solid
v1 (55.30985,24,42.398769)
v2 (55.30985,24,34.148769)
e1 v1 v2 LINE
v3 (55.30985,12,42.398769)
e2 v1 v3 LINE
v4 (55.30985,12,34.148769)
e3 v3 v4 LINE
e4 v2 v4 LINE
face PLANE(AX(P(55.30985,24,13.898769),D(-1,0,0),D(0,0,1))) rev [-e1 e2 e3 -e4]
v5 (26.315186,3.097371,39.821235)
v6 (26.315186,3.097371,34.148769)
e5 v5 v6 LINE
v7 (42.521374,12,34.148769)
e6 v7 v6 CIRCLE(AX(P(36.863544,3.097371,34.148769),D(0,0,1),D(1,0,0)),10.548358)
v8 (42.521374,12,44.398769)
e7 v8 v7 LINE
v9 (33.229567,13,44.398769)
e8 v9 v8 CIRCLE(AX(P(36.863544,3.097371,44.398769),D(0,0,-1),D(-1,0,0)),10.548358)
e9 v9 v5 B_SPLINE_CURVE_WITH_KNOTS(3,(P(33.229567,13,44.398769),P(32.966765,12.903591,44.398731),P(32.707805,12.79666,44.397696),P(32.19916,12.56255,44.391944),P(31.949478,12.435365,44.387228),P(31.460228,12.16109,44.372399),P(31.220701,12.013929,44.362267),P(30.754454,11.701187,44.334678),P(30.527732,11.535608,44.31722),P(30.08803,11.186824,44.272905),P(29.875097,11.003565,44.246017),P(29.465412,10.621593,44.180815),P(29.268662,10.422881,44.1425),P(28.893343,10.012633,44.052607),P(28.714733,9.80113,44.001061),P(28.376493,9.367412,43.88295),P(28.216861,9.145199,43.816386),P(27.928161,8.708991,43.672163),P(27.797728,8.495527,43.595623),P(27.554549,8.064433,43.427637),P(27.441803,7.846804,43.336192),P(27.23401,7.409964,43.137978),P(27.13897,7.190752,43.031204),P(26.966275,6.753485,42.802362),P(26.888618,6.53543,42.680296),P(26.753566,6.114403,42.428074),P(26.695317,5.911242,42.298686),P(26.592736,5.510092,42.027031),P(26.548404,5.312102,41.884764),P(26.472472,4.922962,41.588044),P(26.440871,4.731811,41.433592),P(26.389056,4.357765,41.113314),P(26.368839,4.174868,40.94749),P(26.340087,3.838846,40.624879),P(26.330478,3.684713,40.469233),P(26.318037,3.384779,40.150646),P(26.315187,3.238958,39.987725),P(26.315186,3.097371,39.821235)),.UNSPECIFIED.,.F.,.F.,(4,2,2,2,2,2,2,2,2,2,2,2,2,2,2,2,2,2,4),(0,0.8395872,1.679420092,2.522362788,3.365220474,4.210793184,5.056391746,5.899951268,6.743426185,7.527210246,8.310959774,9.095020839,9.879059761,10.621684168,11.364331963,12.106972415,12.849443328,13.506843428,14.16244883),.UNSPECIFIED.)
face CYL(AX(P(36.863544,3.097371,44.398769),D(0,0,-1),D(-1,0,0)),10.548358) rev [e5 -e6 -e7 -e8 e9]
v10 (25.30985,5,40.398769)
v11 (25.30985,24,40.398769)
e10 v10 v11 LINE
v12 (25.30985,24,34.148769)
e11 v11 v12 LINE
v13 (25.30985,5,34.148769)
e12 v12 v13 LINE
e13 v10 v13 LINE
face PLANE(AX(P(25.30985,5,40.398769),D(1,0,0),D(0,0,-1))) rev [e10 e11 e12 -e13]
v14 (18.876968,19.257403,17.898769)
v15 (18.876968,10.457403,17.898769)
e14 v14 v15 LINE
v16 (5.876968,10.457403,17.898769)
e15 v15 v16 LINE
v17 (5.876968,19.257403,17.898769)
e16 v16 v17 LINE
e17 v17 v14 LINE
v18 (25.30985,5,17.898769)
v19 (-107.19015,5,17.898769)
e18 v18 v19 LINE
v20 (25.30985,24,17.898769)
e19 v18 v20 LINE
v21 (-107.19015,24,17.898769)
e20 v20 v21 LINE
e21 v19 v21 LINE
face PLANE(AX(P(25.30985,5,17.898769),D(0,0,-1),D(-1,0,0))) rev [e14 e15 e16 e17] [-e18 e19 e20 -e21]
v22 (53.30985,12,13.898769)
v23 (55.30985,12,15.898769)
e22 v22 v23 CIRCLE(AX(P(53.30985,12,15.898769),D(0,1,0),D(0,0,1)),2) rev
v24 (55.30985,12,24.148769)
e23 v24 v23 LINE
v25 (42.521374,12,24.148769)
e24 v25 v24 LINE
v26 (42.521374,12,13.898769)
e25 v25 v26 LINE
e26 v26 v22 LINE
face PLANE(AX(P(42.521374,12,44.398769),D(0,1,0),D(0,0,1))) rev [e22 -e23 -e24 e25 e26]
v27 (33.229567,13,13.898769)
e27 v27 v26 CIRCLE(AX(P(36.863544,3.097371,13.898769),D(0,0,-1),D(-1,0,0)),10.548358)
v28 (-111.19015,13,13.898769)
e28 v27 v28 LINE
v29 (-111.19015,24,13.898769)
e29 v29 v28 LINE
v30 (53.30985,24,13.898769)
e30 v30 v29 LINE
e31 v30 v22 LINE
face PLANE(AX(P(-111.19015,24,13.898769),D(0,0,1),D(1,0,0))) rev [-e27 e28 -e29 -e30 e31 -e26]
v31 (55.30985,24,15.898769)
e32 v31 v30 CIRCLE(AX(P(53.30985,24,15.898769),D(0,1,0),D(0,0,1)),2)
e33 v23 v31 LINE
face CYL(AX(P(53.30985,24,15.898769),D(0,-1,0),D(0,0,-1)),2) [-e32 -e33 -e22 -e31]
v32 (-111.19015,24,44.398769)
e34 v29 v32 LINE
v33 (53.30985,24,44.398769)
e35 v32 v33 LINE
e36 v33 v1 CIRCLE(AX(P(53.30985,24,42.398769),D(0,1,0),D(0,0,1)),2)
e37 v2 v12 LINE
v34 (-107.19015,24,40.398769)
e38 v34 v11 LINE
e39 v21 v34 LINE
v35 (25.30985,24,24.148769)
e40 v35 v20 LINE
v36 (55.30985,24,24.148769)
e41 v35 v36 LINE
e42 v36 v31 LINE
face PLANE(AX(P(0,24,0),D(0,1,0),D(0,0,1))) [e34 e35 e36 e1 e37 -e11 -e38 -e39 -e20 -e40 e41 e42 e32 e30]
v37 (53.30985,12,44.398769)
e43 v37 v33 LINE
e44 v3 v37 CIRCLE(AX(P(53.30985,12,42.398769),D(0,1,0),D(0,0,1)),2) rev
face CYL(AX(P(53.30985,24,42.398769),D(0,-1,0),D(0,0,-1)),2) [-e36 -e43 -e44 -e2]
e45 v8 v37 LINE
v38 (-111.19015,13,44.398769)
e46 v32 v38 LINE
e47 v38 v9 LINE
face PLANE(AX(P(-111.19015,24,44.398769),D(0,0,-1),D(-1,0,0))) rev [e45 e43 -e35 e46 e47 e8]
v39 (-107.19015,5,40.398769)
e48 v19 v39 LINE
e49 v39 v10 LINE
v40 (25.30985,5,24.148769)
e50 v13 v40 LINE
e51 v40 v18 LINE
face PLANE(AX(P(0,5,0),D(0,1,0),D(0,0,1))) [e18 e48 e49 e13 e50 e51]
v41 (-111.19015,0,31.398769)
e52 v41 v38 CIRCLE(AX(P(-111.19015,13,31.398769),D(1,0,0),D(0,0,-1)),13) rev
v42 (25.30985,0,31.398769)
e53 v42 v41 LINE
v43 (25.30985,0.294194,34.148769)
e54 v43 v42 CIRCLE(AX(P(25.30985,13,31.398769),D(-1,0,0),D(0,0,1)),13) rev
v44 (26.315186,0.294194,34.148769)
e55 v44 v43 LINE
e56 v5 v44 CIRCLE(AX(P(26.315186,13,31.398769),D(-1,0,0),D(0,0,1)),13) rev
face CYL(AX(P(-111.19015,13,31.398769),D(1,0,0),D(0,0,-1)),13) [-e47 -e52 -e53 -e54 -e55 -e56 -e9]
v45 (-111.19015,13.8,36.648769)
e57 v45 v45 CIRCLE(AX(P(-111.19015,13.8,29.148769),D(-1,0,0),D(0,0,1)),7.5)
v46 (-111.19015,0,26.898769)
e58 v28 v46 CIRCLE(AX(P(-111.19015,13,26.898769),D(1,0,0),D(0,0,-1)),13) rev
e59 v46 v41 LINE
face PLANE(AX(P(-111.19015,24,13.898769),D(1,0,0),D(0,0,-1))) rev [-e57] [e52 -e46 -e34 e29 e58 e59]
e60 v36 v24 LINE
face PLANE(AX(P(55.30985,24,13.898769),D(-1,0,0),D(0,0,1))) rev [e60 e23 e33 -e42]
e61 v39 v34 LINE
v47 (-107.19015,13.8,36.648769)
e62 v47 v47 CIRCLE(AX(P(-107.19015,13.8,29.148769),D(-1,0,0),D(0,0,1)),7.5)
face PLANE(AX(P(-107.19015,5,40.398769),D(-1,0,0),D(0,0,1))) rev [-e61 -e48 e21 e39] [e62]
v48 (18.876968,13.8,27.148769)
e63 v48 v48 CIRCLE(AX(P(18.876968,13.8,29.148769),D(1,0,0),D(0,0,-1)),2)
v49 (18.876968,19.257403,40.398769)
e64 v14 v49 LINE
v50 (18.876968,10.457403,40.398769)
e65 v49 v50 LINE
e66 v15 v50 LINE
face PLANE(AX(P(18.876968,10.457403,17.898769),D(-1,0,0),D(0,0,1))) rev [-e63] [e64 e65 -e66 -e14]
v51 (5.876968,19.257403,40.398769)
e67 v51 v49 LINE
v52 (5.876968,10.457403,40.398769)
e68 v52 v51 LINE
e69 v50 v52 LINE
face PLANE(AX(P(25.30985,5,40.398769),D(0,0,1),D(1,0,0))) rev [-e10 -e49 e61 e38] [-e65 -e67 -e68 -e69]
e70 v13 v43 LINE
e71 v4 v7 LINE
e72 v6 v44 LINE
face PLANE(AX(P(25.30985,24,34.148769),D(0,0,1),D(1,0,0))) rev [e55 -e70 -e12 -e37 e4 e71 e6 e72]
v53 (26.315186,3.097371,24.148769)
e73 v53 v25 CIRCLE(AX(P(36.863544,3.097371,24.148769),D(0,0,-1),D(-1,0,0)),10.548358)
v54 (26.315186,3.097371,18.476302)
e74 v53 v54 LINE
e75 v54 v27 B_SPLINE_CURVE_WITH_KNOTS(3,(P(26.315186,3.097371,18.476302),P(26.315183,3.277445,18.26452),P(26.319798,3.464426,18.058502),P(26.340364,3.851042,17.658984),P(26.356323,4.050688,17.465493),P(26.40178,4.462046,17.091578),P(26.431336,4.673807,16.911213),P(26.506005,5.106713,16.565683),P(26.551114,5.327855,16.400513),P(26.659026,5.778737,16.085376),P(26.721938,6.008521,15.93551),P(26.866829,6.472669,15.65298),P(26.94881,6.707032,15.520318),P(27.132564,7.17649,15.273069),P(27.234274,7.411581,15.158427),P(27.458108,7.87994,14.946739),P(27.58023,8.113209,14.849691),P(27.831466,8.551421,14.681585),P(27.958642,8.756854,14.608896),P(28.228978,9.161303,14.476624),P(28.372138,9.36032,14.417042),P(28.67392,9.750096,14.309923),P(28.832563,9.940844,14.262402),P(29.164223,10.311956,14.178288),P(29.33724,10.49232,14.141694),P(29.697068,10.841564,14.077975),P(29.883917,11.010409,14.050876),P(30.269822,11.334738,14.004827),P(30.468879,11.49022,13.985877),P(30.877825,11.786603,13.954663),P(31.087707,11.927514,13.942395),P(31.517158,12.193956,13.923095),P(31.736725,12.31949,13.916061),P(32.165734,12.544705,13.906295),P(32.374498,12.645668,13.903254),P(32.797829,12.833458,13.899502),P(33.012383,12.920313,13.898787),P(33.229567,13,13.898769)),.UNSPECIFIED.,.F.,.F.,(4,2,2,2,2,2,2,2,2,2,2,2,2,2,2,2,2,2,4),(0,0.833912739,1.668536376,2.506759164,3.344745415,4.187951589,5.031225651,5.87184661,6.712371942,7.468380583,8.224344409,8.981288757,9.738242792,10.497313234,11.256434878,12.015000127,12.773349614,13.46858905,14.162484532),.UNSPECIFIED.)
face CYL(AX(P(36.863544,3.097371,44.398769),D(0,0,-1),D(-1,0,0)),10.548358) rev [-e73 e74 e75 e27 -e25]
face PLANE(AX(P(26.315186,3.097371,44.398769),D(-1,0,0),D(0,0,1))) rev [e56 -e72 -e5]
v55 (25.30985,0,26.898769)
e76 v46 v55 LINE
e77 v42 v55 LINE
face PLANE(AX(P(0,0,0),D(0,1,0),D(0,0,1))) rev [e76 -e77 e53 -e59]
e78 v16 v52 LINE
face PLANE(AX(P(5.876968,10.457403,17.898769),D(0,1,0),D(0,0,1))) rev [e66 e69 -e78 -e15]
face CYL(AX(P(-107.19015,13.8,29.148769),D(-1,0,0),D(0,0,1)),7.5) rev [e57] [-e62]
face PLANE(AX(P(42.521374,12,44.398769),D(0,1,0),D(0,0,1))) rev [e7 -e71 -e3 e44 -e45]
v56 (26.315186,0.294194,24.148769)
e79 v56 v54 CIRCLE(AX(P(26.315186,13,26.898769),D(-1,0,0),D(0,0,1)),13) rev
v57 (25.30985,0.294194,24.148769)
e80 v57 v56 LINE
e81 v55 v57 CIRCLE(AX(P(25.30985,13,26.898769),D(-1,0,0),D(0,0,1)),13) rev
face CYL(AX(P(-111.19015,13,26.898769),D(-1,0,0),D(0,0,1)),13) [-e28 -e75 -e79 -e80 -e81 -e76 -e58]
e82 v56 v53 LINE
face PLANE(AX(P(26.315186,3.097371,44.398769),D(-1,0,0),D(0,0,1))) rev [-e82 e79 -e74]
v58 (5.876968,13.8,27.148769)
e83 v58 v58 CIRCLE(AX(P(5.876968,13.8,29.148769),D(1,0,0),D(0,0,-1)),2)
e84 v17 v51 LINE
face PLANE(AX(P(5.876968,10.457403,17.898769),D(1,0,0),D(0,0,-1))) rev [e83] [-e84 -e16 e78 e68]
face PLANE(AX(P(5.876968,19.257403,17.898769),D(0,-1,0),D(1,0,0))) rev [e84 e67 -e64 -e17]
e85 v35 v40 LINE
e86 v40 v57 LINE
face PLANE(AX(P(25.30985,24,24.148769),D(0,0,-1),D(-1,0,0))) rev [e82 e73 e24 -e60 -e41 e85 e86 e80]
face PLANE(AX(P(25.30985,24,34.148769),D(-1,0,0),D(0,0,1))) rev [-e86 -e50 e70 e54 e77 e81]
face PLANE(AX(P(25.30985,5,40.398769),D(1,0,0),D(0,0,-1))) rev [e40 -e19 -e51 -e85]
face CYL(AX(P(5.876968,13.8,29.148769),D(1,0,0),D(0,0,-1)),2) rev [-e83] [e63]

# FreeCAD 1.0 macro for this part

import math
import FreeCAD as App
import Part
import Sketcher
Q = App.Units.Quantity


def edges_at(feature, points):
    """Names of the edges that pass closest to the given points."""
    edges = feature.Shape.Edges
    near = lambda p: min(range(len(edges)), key=lambda i: edges[i].distToShape(Part.Vertex(*p))[0])
    return sorted({f"Edge{near(p) + 1}" for p in points})


def add_polygon(sketch, points):
    """Adds a closed chain of lines whose ends are joined by coincident constraints."""
    first, n = sketch.GeometryCount, len(points)
    for a, b in zip(points, points[1:] + points[:1]):
        sketch.addGeometry(Part.LineSegment(App.Vector(*a, 0), App.Vector(*b, 0)), False)
    for i in range(n):
        sketch.addConstraint(Sketcher.Constraint("Coincident", first + i, 2, first + (i + 1) % n, 1))

doc = App.newDocument("Part")
body = doc.addObject("PartDesign::Body", "Body")

# Sketch on XZ plane
sketch1 = body.newObject("Sketcher::SketchObject", "Sketch")
sketch1.AttachmentSupport = (doc.getObject("XZ_Plane"), [""])
sketch1.MapMode = "FlatFace"
add_polygon(sketch1, [(-111, 14), (-111, 44), (55, 44), (55, 14)])  # lines 0-3
sketch1.addConstraint([
    Sketcher.Constraint("Vertical", 0),
    Sketcher.Constraint("Horizontal", 1),
    Sketcher.Constraint("Vertical", 2),
    Sketcher.Constraint("Horizontal", 3),
    Sketcher.Constraint("DistanceX", 1, 1, 1, 2, Q("166.5 mm")),
    Sketcher.Constraint("DistanceY", 0, 1, 0, 2, Q("30.5 mm")),
    Sketcher.Constraint("DistanceX", 0, 2, -1, 1, Q("111.19015 mm")),
    Sketcher.Constraint("DistanceY", -1, 1, 0, 2, Q("44.398769 mm")),
])
pad1 = body.newObject("PartDesign::Pad", "Pad")
pad1.Profile = sketch1
pad1.Length = 24
pad1.Reversed = True

# Sketch on XZ plane
sketch2 = body.newObject("Sketcher::SketchObject", "Sketch001")
sketch2.AttachmentSupport = (doc.getObject("XZ_Plane"), [""])
sketch2.MapMode = "FlatFace"
add_polygon(sketch2, [(25, 34), (25, 24), (55, 24), (55, 34)])  # lines 0-3
sketch2.addConstraint([
    Sketcher.Constraint("Vertical", 0),
    Sketcher.Constraint("Horizontal", 1),
    Sketcher.Constraint("Vertical", 2),
    Sketcher.Constraint("Horizontal", 3),
    Sketcher.Constraint("DistanceX", 1, 1, 1, 2, Q("30 mm")),
    Sketcher.Constraint("DistanceY", 0, 2, 0, 1, Q("10 mm")),
    Sketcher.Constraint("DistanceX", -1, 1, 0, 2, Q("25.30985 mm")),
    Sketcher.Constraint("DistanceY", -1, 1, 0, 2, Q("24.148769 mm")),
])
pocket1 = body.newObject("PartDesign::Pocket", "Pocket")
pocket1.Profile = sketch2
pocket1.Type = "ThroughAll"

# Sketch on XY plane
sketch3 = body.newObject("Sketcher::SketchObject", "Sketch002")
sketch3.AttachmentSupport = (doc.getObject("XY_Plane"), [""])
sketch3.MapMode = "FlatFace"
sketch3.AttachmentOffset = App.Placement(App.Vector(0, 0, 13.898769), App.Rotation())
sketch3.addGeometry([
    Part.LineSegment(App.Vector(26.3, 0, 0), App.Vector(26.3, 3.1, 0)),  # 0
    Part.ArcOfCircle(Part.Circle(App.Vector(36.9, 3.1, 0), App.Vector(0, 0, 1), 10.5), math.radians(58), math.radians(180)),  # 1
    Part.LineSegment(App.Vector(42.5, 12, 0), App.Vector(55.3, 12, 0)),  # 2
    Part.LineSegment(App.Vector(55.3, 12, 0), App.Vector(55.3, 0, 0)),  # 3
    Part.LineSegment(App.Vector(55.3, 0, 0), App.Vector(26.3, 0, 0)),  # 4
], False)
sketch3.addConstraint([
    Sketcher.Constraint("Tangent", 0, 2, 1, 2),
    Sketcher.Constraint("Coincident", 1, 1, 2, 1),
    Sketcher.Constraint("Coincident", 2, 2, 3, 1),
    Sketcher.Constraint("Coincident", 3, 2, 4, 1),
    Sketcher.Constraint("Coincident", 4, 2, 0, 1),
    Sketcher.Constraint("Vertical", 0),
    Sketcher.Constraint("Horizontal", 2),
    Sketcher.Constraint("Vertical", 3),
    Sketcher.Constraint("Horizontal", 4),
    Sketcher.Constraint("PointOnObject", 3, 2, -1),
    Sketcher.Constraint("DistanceY", 3, 2, 3, 1, Q("12 mm")),
    Sketcher.Constraint("Radius", 1, Q("10.548358 mm")),
    Sketcher.Constraint("DistanceY", 0, 1, 0, 2, Q("3.097371 mm")),
    Sketcher.Constraint("DistanceX", 2, 1, 2, 2, Q("12.788475 mm")),
    Sketcher.Constraint("DistanceX", -1, 1, 2, 2, Q("55.30985 mm")),
])
pocket2 = body.newObject("PartDesign::Pocket", "Pocket001")
pocket2.Profile = sketch3
pocket2.Type = "ThroughAll"
pocket2.Reversed = True
doc.recompute()

fillet = body.newObject("PartDesign::Fillet", "Fillet")
fillet.Base = (pocket2, edges_at(pocket2, [(55.31, 18, 44.399), (55.31, 18, 13.899)]))
fillet.Radius = 2
doc.recompute()

fillet2 = body.newObject("PartDesign::Fillet", "Fillet001")
fillet2.Base = (fillet, edges_at(fillet, [(-42.437, 0, 44.399), (-42.437, 0, 13.899)]))
fillet2.Radius = 13

# Sketch on XZ plane
sketch4 = body.newObject("Sketcher::SketchObject", "Sketch003")
sketch4.AttachmentSupport = (doc.getObject("XZ_Plane"), [""])
sketch4.MapMode = "FlatFace"
sketch4.AttachmentOffset = App.Placement(App.Vector(0, 0, -24), App.Rotation())
add_polygon(sketch4, [(-107, 18), (-107, 40), (25, 40), (25, 18)])  # lines 0-3
sketch4.addConstraint([
    Sketcher.Constraint("Vertical", 0),
    Sketcher.Constraint("Horizontal", 1),
    Sketcher.Constraint("Vertical", 2),
    Sketcher.Constraint("Horizontal", 3),
    Sketcher.Constraint("DistanceX", 1, 1, 1, 2, Q("132.5 mm")),
    Sketcher.Constraint("DistanceY", 0, 1, 0, 2, Q("22.5 mm")),
    Sketcher.Constraint("DistanceX", 0, 2, -1, 1, Q("107.19015 mm")),
    Sketcher.Constraint("DistanceY", -1, 1, 0, 2, Q("40.398769 mm")),
])
pocket3 = body.newObject("PartDesign::Pocket", "Pocket002")
pocket3.Profile = sketch4
pocket3.Length = 19
pocket3.Reversed = True

# Sketch on YZ plane
sketch5 = body.newObject("Sketcher::SketchObject", "Sketch004")
sketch5.AttachmentSupport = (doc.getObject("YZ_Plane"), [""])
sketch5.MapMode = "FlatFace"
sketch5.AttachmentOffset = App.Placement(App.Vector(0, 0, -111.19015), App.Rotation())
sketch5.addGeometry(Part.Circle(App.Vector(14, 29, 0), App.Vector(0, 0, 1), 8), False)
sketch5.addConstraint([
    Sketcher.Constraint("Diameter", 0, Q("15 mm")),
    Sketcher.Constraint("DistanceX", -1, 1, 0, 3, Q("13.8 mm")),
    Sketcher.Constraint("DistanceY", -1, 1, 0, 3, Q("29.148769 mm")),
])
pocket4 = body.newObject("PartDesign::Pocket", "Pocket003")
pocket4.Profile = sketch5
pocket4.Length = 4
pocket4.Reversed = True

# Sketch on XY plane
sketch6 = body.newObject("Sketcher::SketchObject", "Sketch005")
sketch6.AttachmentSupport = (doc.getObject("XY_Plane"), [""])
sketch6.MapMode = "FlatFace"
sketch6.AttachmentOffset = App.Placement(App.Vector(0, 0, 40.398769), App.Rotation())
add_polygon(sketch6, [(19, 19), (19, 10), (6, 10), (6, 19)])  # lines 0-3
sketch6.addConstraint([
    Sketcher.Constraint("Vertical", 0),
    Sketcher.Constraint("Horizontal", 1),
    Sketcher.Constraint("Vertical", 2),
    Sketcher.Constraint("Horizontal", 3),
    Sketcher.Constraint("DistanceX", 1, 2, 1, 1, Q("13 mm")),
    Sketcher.Constraint("DistanceY", 0, 2, 0, 1, Q("8.8 mm")),
    Sketcher.Constraint("DistanceX", -1, 1, 0, 2, Q("18.876968 mm")),
    Sketcher.Constraint("DistanceY", -1, 1, 0, 2, Q("10.457403 mm")),
])
pad2 = body.newObject("PartDesign::Pad", "Pad001")
pad2.Profile = sketch6
pad2.Length = 22.5
pad2.Reversed = True

# Sketch on YZ plane
sketch7 = body.newObject("Sketcher::SketchObject", "Sketch006")
sketch7.AttachmentSupport = (doc.getObject("YZ_Plane"), [""])
sketch7.MapMode = "FlatFace"
sketch7.AttachmentOffset = App.Placement(App.Vector(0, 0, 18.876968), App.Rotation())
sketch7.addGeometry(Part.Circle(App.Vector(13.8, 29.1, 0), App.Vector(0, 0, 1), 2), False)
sketch7.addConstraint([
    Sketcher.Constraint("Diameter", 0, Q("4 mm")),
    Sketcher.Constraint("DistanceX", -1, 1, 0, 3, Q("13.8 mm")),
    Sketcher.Constraint("DistanceY", -1, 1, 0, 3, Q("29.148769 mm")),
])
pocket5 = body.newObject("PartDesign::Pocket", "Pocket004")
pocket5.Profile = sketch7
pocket5.Length = 13

doc.recompute()
